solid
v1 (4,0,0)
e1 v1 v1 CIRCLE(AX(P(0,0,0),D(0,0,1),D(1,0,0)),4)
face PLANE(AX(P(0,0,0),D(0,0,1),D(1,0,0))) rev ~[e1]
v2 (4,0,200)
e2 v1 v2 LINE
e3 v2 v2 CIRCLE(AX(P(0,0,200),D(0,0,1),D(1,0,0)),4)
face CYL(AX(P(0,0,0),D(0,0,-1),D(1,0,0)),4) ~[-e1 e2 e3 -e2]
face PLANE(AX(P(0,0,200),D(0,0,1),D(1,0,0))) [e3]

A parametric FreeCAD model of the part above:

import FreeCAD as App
import Part
import Sketcher
from FreeCAD import Vector

doc = App.newDocument("Part")
body = doc.addObject("PartDesign::Body", "Body")

sketch1 = body.newObject("Sketcher::SketchObject", "Sketch")
sketch1.AttachmentSupport = (doc.getObject("XY_Plane"), [""])
sketch1.MapMode = "FlatFace"
sketch1.addGeometry(Part.Circle(Vector(0, 0, 0), Vector(0, 0, 1), 4), False)
sketch1.addConstraint(Sketcher.Constraint("Coincident", 0, 3, -1, 1))
sketch1.addConstraint(Sketcher.Constraint("Diameter", 0, 8.0))
pad1 = body.newObject("PartDesign::Pad", "Pad")
pad1.Profile = sketch1
pad1.Length = 200

doc.recompute()
